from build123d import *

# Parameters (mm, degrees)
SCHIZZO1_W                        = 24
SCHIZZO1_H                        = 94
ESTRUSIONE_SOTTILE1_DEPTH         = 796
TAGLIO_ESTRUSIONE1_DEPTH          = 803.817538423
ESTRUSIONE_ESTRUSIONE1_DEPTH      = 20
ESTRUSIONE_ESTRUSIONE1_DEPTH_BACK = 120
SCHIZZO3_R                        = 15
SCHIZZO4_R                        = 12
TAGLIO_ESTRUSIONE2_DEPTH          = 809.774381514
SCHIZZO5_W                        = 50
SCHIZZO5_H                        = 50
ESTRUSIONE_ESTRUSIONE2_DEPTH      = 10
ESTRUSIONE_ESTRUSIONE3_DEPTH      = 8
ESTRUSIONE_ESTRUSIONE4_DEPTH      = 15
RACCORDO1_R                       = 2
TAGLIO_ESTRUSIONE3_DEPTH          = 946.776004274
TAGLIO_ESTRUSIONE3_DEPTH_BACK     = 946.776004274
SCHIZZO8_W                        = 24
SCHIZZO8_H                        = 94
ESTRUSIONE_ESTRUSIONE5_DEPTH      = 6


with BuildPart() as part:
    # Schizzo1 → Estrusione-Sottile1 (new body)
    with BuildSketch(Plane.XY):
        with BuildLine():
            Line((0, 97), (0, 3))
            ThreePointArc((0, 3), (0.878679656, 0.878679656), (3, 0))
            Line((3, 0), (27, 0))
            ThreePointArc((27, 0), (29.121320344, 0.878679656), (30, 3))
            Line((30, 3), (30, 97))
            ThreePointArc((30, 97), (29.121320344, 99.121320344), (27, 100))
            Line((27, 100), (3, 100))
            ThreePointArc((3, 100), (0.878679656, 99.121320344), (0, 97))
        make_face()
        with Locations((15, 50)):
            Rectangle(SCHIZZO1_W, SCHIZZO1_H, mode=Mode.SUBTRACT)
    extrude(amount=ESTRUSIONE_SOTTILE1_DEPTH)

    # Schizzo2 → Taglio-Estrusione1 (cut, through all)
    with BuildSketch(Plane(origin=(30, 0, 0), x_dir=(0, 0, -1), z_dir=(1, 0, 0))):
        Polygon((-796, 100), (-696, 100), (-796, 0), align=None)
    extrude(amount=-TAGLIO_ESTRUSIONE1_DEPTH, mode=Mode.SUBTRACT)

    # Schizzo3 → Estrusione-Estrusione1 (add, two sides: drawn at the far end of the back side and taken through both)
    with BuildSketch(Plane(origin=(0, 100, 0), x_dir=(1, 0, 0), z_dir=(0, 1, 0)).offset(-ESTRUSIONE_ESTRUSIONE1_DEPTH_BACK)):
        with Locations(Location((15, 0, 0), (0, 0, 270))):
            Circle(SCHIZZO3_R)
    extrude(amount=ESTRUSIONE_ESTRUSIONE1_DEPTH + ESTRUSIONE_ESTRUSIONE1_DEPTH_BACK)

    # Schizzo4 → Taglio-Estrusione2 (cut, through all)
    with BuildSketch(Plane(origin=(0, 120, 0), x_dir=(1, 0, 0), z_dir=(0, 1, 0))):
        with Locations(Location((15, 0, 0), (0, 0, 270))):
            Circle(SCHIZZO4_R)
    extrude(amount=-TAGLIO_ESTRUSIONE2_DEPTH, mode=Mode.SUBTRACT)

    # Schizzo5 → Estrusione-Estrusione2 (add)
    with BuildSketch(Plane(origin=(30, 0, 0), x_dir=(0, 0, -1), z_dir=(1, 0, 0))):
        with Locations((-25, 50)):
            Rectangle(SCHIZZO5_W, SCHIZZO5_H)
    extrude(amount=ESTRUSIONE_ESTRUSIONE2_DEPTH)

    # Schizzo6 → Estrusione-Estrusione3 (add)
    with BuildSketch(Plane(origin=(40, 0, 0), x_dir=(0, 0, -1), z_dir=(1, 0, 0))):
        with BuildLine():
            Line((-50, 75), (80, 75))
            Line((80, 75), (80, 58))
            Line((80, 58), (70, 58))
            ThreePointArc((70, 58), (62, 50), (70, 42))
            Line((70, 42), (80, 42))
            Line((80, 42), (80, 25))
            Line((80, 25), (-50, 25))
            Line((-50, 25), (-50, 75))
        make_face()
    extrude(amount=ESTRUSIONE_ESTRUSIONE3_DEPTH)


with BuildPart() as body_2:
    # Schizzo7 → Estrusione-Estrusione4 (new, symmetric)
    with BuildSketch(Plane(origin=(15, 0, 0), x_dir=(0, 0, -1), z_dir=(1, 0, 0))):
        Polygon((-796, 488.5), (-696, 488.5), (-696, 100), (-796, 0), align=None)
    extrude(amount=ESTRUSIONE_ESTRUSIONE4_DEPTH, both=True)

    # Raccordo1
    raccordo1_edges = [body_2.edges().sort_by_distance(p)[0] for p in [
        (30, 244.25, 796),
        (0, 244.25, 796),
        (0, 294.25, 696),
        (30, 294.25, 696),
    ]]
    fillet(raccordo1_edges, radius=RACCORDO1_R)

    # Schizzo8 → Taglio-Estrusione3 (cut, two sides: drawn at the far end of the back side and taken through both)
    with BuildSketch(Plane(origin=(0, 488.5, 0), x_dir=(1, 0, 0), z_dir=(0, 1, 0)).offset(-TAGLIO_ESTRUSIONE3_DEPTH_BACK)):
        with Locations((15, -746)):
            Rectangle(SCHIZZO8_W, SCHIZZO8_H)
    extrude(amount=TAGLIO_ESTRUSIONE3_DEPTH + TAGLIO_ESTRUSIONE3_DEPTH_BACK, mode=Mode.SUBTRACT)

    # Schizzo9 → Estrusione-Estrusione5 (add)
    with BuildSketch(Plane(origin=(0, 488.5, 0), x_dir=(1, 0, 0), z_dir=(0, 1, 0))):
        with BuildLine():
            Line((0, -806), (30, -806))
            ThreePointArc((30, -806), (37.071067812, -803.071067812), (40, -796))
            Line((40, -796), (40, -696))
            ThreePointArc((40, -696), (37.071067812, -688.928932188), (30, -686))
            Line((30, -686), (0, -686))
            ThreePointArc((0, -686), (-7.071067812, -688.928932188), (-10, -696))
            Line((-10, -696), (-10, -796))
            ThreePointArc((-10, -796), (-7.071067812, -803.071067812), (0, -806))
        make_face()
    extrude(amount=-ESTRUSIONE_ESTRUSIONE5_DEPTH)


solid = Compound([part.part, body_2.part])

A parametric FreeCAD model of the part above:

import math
import FreeCAD as App
import Part
import Sketcher

V = App.Vector
Q = App.Units.Quantity


def edges_at(feature, points):
    """Names of the edges that pass closest to the given points."""
    edges = feature.Shape.Edges
    near = lambda p: min(range(len(edges)), key=lambda i: edges[i].distToShape(Part.Vertex(*p))[0])
    return sorted({f"Edge{near(p) + 1}" for p in points})


def add_polygon(sketch, points):
    """Adds a closed chain of lines whose ends are joined by coincident constraints."""
    first, n = sketch.GeometryCount, len(points)
    for a, b in zip(points, points[1:] + points[:1]):
        sketch.addGeometry(Part.LineSegment(App.Vector(*a, 0), App.Vector(*b, 0)), False)
    for i in range(n):
        sketch.addConstraint(Sketcher.Constraint("Coincident", first + i, 2, first + (i + 1) % n, 1))

doc = App.newDocument("Part")
body = doc.addObject("PartDesign::Body", "Body")

# Sketch on XY plane
sketch1 = body.newObject("Sketcher::SketchObject", "Sketch")
sketch1.AttachmentSupport = (doc.getObject("XY_Plane"), [""])
sketch1.MapMode = "FlatFace"
sketch1.addGeometry(Part.LineSegment(V(0, 97, 0), V(0, 3, 0)), False)  # 0
sketch1.addGeometry(Part.ArcOfCircle(Part.Circle(V(3, 3, 0), V(0, 0, 1), 3), math.radians(180), math.radians(270)), False)  # 1
sketch1.addGeometry(Part.LineSegment(V(3, 0, 0), V(27, 0, 0)), False)  # 2
sketch1.addGeometry(Part.ArcOfCircle(Part.Circle(V(27, 3, 0), V(0, 0, 1), 3), math.radians(-90), math.radians(0)), False)  # 3
sketch1.addGeometry(Part.LineSegment(V(30, 3, 0), V(30, 97, 0)), False)  # 4
sketch1.addGeometry(Part.ArcOfCircle(Part.Circle(V(27, 97, 0), V(0, 0, 1), 3), math.radians(0), math.radians(90)), False)  # 5
sketch1.addGeometry(Part.LineSegment(V(27, 100, 0), V(3, 100, 0)), False)  # 6
sketch1.addGeometry(Part.ArcOfCircle(Part.Circle(V(3, 97, 0), V(0, 0, 1), 3), math.radians(90), math.radians(180)), False)  # 7
add_polygon(sketch1, [(27, 3), (3, 3), (3, 97), (27, 97)])  # lines 8-11
sketch1.addConstraint([
    Sketcher.Constraint("Tangent", 0, 2, 1, 1),
    Sketcher.Constraint("Tangent", 1, 2, 2, 1),
    Sketcher.Constraint("Tangent", 2, 2, 3, 1),
    Sketcher.Constraint("Tangent", 3, 2, 4, 1),
    Sketcher.Constraint("Tangent", 4, 2, 5, 1),
    Sketcher.Constraint("Tangent", 5, 2, 6, 1),
    Sketcher.Constraint("Tangent", 6, 2, 7, 1),
    Sketcher.Constraint("Tangent", 7, 2, 0, 1),
    Sketcher.Constraint("Vertical", 0),
    Sketcher.Constraint("Horizontal", 2),
    Sketcher.Constraint("Vertical", 4),
    Sketcher.Constraint("Horizontal", 6),
    Sketcher.Constraint("Horizontal", 8),
    Sketcher.Constraint("Vertical", 9),
    Sketcher.Constraint("Horizontal", 10),
    Sketcher.Constraint("Vertical", 11),
    Sketcher.Constraint("Coincident", 8, 2, 1, 3),
    Sketcher.Constraint("Coincident", 9, 2, 7, 3),
    Sketcher.Constraint("Coincident", 10, 2, 5, 3),
    Sketcher.Constraint("Equal", 1, 3),
    Sketcher.Constraint("PointOnObject", 0, 2, -2),
    Sketcher.Constraint("PointOnObject", 1, 2, -1),
    Sketcher.Constraint("Radius", 1, 3.0),
    Sketcher.Constraint("DistanceX", 2, 1, 2, 2, 24.0),
    Sketcher.Constraint("DistanceY", 0, 2, 0, 1, 94.0),
])
pad1 = body.newObject("PartDesign::Pad", "Pad")
pad1.Profile = sketch1
pad1.Length = 796

# Sketch on YZ plane
sketch2 = body.newObject("Sketcher::SketchObject", "Sketch001")
sketch2.AttachmentSupport = (doc.getObject("YZ_Plane"), [""])
sketch2.MapMode = "FlatFace"
sketch2.AttachmentOffset = App.Placement(V(0, 0, 30), App.Rotation())
add_polygon(sketch2, [(100, 696), (100, 796), (0, 796)])  # lines 0-2
sketch2.addConstraint([
    Sketcher.Constraint("Vertical", 0),
    Sketcher.Constraint("Horizontal", 1),
    Sketcher.Constraint("PointOnObject", 1, 2, -2),
    Sketcher.Constraint("Equal", 1, 0),
    Sketcher.Constraint("DistanceX", 1, 2, 1, 1, 100.0),
    Sketcher.Constraint("DistanceY", -1, 1, 0, 2, 796.0),
])
pocket1 = body.newObject("PartDesign::Pocket", "Pocket")
pocket1.Profile = sketch2
pocket1.Type = "ThroughAll"

# Sketch on XZ plane
sketch3 = body.newObject("Sketcher::SketchObject", "Sketch002")
sketch3.AttachmentSupport = (doc.getObject("XZ_Plane"), [""])
sketch3.MapMode = "FlatFace"
sketch3.AttachmentOffset = App.Placement(V(0, 0, -100), App.Rotation())
sketch3.addGeometry(Part.Circle(V(15, 0, 0), V(0, 0, 1), 15), False)
sketch3.addConstraint([
    Sketcher.Constraint("PointOnObject", 0, 3, -1),
    Sketcher.Constraint("Diameter", 0, 30.0),
    Sketcher.Constraint("DistanceX", -1, 1, 0, 3, 15.0),
])
pad2 = body.newObject("PartDesign::Pad", "Pad001")
pad2.Profile = sketch3
pad2.Type = "TwoLengths"
pad2.Length = 20
pad2.Length2 = 120
pad2.Reversed = True

# Sketch on XZ plane
sketch4 = body.newObject("Sketcher::SketchObject", "Sketch003")
sketch4.AttachmentSupport = (doc.getObject("XZ_Plane"), [""])
sketch4.MapMode = "FlatFace"
sketch4.AttachmentOffset = App.Placement(V(0, 0, -120), App.Rotation())
sketch4.addGeometry(Part.Circle(V(15, 0, 0), V(0, 0, 1), 12), False)
sketch4.addConstraint([
    Sketcher.Constraint("PointOnObject", 0, 3, -1),
    Sketcher.Constraint("Diameter", 0, 24.0),
    Sketcher.Constraint("DistanceX", -1, 1, 0, 3, 15.0),
])
pocket2 = body.newObject("PartDesign::Pocket", "Pocket001")
pocket2.Profile = sketch4
pocket2.Type = "ThroughAll"
pocket2.Reversed = True

# Sketch on YZ plane
sketch5 = body.newObject("Sketcher::SketchObject", "Sketch004")
sketch5.AttachmentSupport = (doc.getObject("YZ_Plane"), [""])
sketch5.MapMode = "FlatFace"
sketch5.AttachmentOffset = App.Placement(V(0, 0, 30), App.Rotation())
add_polygon(sketch5, [(75, 50), (25, 50), (25, 0), (75, 0)])  # lines 0-3
sketch5.addConstraint([
    Sketcher.Constraint("Horizontal", 0),
    Sketcher.Constraint("Vertical", 1),
    Sketcher.Constraint("Horizontal", 2),
    Sketcher.Constraint("Vertical", 3),
    Sketcher.Constraint("PointOnObject", 1, 2, -1),
    Sketcher.Constraint("Equal", 2, 1),
    Sketcher.Constraint("DistanceX", 0, 2, 0, 1, 50.0),
    Sketcher.Constraint("DistanceX", -1, 1, 0, 2, 25.0),
])
pad3 = body.newObject("PartDesign::Pad", "Pad002")
pad3.Profile = sketch5
pad3.Length = 10

# Sketch on YZ plane
sketch6 = body.newObject("Sketcher::SketchObject", "Sketch005")
sketch6.AttachmentSupport = (doc.getObject("YZ_Plane"), [""])
sketch6.MapMode = "FlatFace"
sketch6.AttachmentOffset = App.Placement(V(0, 0, 40), App.Rotation())
sketch6.addGeometry([
    Part.LineSegment(V(75, -80, 0), V(75, 50, 0)),  # 0
    Part.LineSegment(V(75, 50, 0), V(25, 50, 0)),  # 1
    Part.LineSegment(V(25, 50, 0), V(25, -80, 0)),  # 2
    Part.LineSegment(V(25, -80, 0), V(42, -80, 0)),  # 3
    Part.LineSegment(V(42, -80, 0), V(42, -70, 0)),  # 4
    Part.ArcOfCircle(Part.Circle(V(50, -70, 0), V(0, 0, 1), 8), math.radians(0), math.radians(180)),  # 5
    Part.LineSegment(V(58, -70, 0), V(58, -80, 0)),  # 6
    Part.LineSegment(V(58, -80, 0), V(75, -80, 0)),  # 7
], False)
sketch6.addConstraint([
    Sketcher.Constraint("Coincident", 0, 2, 1, 1),
    Sketcher.Constraint("Coincident", 1, 2, 2, 1),
    Sketcher.Constraint("Coincident", 2, 2, 3, 1),
    Sketcher.Constraint("Coincident", 3, 2, 4, 1),
    Sketcher.Constraint("Tangent", 4, 2, 5, 2),
    Sketcher.Constraint("Tangent", 5, 1, 6, 1),
    Sketcher.Constraint("Coincident", 6, 2, 7, 1),
    Sketcher.Constraint("Coincident", 7, 2, 0, 1),
    Sketcher.Constraint("Vertical", 0),
    Sketcher.Constraint("Horizontal", 1),
    Sketcher.Constraint("Vertical", 2),
    Sketcher.Constraint("Horizontal", 3),
    Sketcher.Constraint("Vertical", 4),
    Sketcher.Constraint("Vertical", 6),
    Sketcher.Constraint("Horizontal", 7),
    Sketcher.Constraint("Horizontal", 3, 2, 6, 2),
    Sketcher.Constraint("Equal", 3, 7),
    Sketcher.Constraint("Radius", 5, 8.0),
    Sketcher.Constraint("DistanceX", 1, 2, 1, 1, 50.0),
    Sketcher.Constraint("DistanceY", 0, 1, 0, 2, 130.0),
    Sketcher.Constraint("DistanceY", 4, 1, 4, 2, 10.0),
    Sketcher.Constraint("DistanceX", -1, 1, 5, 3, 50.0),
    Sketcher.Constraint("DistanceY", 5, 3, -1, 1, 70.0),
])
pad4 = body.newObject("PartDesign::Pad", "Pad003")
pad4.Profile = sketch6
pad4.Length = 8
body2 = doc.addObject("PartDesign::Body", "Body001")

# Sketch on YZ plane
sketch7 = body2.newObject("Sketcher::SketchObject", "Sketch006")
sketch7.AttachmentSupport = (doc.getObject("YZ_Plane001"), [""])
sketch7.MapMode = "FlatFace"
sketch7.AttachmentOffset = App.Placement(V(0, 0, 15), App.Rotation())
add_polygon(sketch7, [(488, 696), (488, 796), (0, 796), (100, 696)])  # lines 0-3
sketch7.addConstraint([
    Sketcher.Constraint("Vertical", 0),
    Sketcher.Constraint("Horizontal", 1),
    Sketcher.Constraint("Horizontal", 3),
    Sketcher.Constraint("PointOnObject", 1, 2, -2),
    Sketcher.Constraint("DistanceY", 0, 1, 0, 2, 100.0),
    Sketcher.Constraint("Angle", 2, Q("-45 deg")),
    Sketcher.Constraint("DistanceX", 1, 2, 1, 1, 488.5),
    Sketcher.Constraint("DistanceY", -1, 1, 0, 2, 796.0),
])
pad5 = body2.newObject("PartDesign::Pad", "Pad004")
pad5.Profile = sketch7
pad5.Length = 30
pad5.Midplane = True
doc.recompute()

fillet = body2.newObject("PartDesign::Fillet", "Fillet")
fillet.Base = (pad5, edges_at(pad5, [
    (30, 244.25, 796),
    (0, 244.25, 796),
    (0, 294.25, 696),
    (30, 294.25, 696),
]))
fillet.Radius = 2

# Sketch on XZ plane
sketch8 = body2.newObject("Sketcher::SketchObject", "Sketch007")
sketch8.AttachmentSupport = (doc.getObject("XZ_Plane001"), [""])
sketch8.MapMode = "FlatFace"
sketch8.AttachmentOffset = App.Placement(V(0, 0, -488.5), App.Rotation())
add_polygon(sketch8, [(3, 699), (3, 793), (27, 793), (27, 699)])  # lines 0-3
sketch8.addConstraint([
    Sketcher.Constraint("Vertical", 0),
    Sketcher.Constraint("Horizontal", 1),
    Sketcher.Constraint("Vertical", 2),
    Sketcher.Constraint("Horizontal", 3),
    Sketcher.Constraint("DistanceX", 1, 1, 1, 2, 24.0),
    Sketcher.Constraint("DistanceY", 0, 1, 0, 2, 94.0),
    Sketcher.Constraint("DistanceX", -1, 1, 0, 2, 3.0),
    Sketcher.Constraint("DistanceY", -1, 1, 0, 2, 793.0),
])
pocket3 = body2.newObject("PartDesign::Pocket", "Pocket002")
pocket3.Profile = sketch8
pocket3.Type = "ThroughAll"
pocket3.Midplane = True

# Sketch on XZ plane
sketch9 = body2.newObject("Sketcher::SketchObject", "Sketch008")
sketch9.AttachmentSupport = (doc.getObject("XZ_Plane001"), [""])
sketch9.MapMode = "FlatFace"
sketch9.AttachmentOffset = App.Placement(V(0, 0, -488.5), App.Rotation())
sketch9.addGeometry([
    Part.LineSegment(V(0, 806, 0), V(30, 806, 0)),  # 0
    Part.ArcOfCircle(Part.Circle(V(30, 796, 0), V(0, 0, 1), 10), math.radians(0), math.radians(90)),  # 1
    Part.LineSegment(V(40, 796, 0), V(40, 696, 0)),  # 2
    Part.ArcOfCircle(Part.Circle(V(30, 696, 0), V(0, 0, 1), 10), math.radians(-90), math.radians(0)),  # 3
    Part.LineSegment(V(30, 686, 0), V(0, 686, 0)),  # 4
    Part.ArcOfCircle(Part.Circle(V(0, 696, 0), V(0, 0, 1), 10), math.radians(180), math.radians(270)),  # 5
    Part.LineSegment(V(-10, 696, 0), V(-10, 796, 0)),  # 6
    Part.ArcOfCircle(Part.Circle(V(0, 796, 0), V(0, 0, 1), 10), math.radians(90), math.radians(180)),  # 7
], False)
sketch9.addConstraint([
    Sketcher.Constraint("Tangent", 0, 2, 1, 2),
    Sketcher.Constraint("Tangent", 1, 1, 2, 1),
    Sketcher.Constraint("Tangent", 2, 2, 3, 2),
    Sketcher.Constraint("Tangent", 3, 1, 4, 1),
    Sketcher.Constraint("Tangent", 4, 2, 5, 2),
    Sketcher.Constraint("Tangent", 5, 1, 6, 1),
    Sketcher.Constraint("Tangent", 6, 2, 7, 2),
    Sketcher.Constraint("Tangent", 7, 1, 0, 1),
    Sketcher.Constraint("Horizontal", 0),
    Sketcher.Constraint("Vertical", 2),
    Sketcher.Constraint("Horizontal", 4),
    Sketcher.Constraint("Vertical", 6),
    Sketcher.Constraint("Equal", 1, 3),
    Sketcher.Constraint("Equal", 3, 5),
    Sketcher.Constraint("Equal", 5, 7),
    Sketcher.Constraint("PointOnObject", 5, 3, -2),
    Sketcher.Constraint("Radius", 1, 10.0),
    Sketcher.Constraint("DistanceX", 0, 1, 0, 2, 30.0),
    Sketcher.Constraint("DistanceY", 2, 2, 2, 1, 100.0),
    Sketcher.Constraint("DistanceY", -1, 1, 1, 3, 796.0),
])
pad6 = body2.newObject("PartDesign::Pad", "Pad005")
pad6.Profile = sketch9
pad6.Length = 6

doc.recompute()
